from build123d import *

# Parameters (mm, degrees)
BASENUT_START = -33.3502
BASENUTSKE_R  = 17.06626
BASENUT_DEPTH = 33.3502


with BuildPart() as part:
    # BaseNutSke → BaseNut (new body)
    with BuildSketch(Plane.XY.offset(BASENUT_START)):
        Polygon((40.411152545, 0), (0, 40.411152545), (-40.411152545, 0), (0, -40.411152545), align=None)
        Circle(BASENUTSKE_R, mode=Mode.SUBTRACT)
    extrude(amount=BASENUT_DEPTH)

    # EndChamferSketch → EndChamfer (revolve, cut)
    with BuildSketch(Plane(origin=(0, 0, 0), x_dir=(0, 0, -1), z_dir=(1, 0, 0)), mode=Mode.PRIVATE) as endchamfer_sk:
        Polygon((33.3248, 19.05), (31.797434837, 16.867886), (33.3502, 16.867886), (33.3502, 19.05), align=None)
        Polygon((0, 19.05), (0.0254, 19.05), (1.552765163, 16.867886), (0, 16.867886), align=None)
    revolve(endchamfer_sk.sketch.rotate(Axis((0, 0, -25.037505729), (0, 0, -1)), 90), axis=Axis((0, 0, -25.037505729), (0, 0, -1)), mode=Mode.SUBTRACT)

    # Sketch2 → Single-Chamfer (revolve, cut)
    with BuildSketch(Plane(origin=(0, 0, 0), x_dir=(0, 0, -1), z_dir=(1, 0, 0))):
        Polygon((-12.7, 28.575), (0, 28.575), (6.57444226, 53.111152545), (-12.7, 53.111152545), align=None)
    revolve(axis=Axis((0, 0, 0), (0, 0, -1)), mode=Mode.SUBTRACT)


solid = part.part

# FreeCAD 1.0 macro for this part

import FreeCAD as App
import Part
import Sketcher

V = App.Vector
Q = App.Units.Quantity

doc = App.newDocument("Part")
body = doc.addObject("PartDesign::Body", "Body")

# Sketch on XY plane
sketch1 = body.newObject("Sketcher::SketchObject", "Sketch")
sketch1.AttachmentSupport = (doc.getObject("XY_Plane"), [""])
sketch1.MapMode = "FlatFace"
sketch1.AttachmentOffset = App.Placement(V(0, 0, -1.313 * 25.4), App.Rotation())
sketch1.addGeometry([
    Part.LineSegment(V(40.411153, 0, 0), V(0, 40.411153, 0)),  # 0
    Part.LineSegment(V(0, 40.411153, 0), V(-40.411153, 0, 0)),  # 1
    Part.LineSegment(V(-40.411153, 0, 0), V(0, -40.411153, 0)),  # 2
    Part.LineSegment(V(0, -40.411153, 0), V(40.411153, 0, 0)),  # 3
    Part.Circle(V(0, 0, 0), V(0, 0, 1), 17.06626),  # 4
], False)
sketch1.addConstraint([
    Sketcher.Constraint("Coincident", 0, 2, 1, 1),
    Sketcher.Constraint("Coincident", 1, 2, 2, 1),
    Sketcher.Constraint("Coincident", 2, 2, 3, 1),
    Sketcher.Constraint("Coincident", 3, 2, 0, 1),
    Sketcher.Constraint("Coincident", 4, 3, -1, 1),
    Sketcher.Constraint("Symmetric", 0, 2, 2, 2, -1, 1),
    Sketcher.Constraint("Symmetric", 1, 2, 3, 2, -1, 1),
    Sketcher.Constraint("PointOnObject", 0, 2, -2),
    Sketcher.Constraint("PointOnObject", 1, 2, -1),
    Sketcher.Constraint("Perpendicular", 0, 1),
    Sketcher.Constraint("Diameter", 4, Q("1.3438 in")),
    Sketcher.Constraint("Distance", 0, Q("2.25 in")),
])
pad1 = body.newObject("PartDesign::Pad", "Pad")
pad1.Profile = sketch1
pad1.Length = Q("1.313 in")

# Sketch on YZ plane
sketch2 = body.newObject("Sketcher::SketchObject", "Sketch001")
sketch2.AttachmentSupport = (doc.getObject("YZ_Plane"), [""])
sketch2.MapMode = "FlatFace"
sketch2.addGeometry([
    Part.LineSegment(V(19.05, -33.3248, 0), V(16.867886, -31.797435, 0)),  # 0
    Part.LineSegment(V(16.867886, -31.797435, 0), V(16.867886, -33.3502, 0)),  # 1
    Part.LineSegment(V(16.867886, -33.3502, 0), V(19.05, -33.3502, 0)),  # 2
    Part.LineSegment(V(19.05, -33.3502, 0), V(19.05, -33.3248, 0)),  # 3
    Part.LineSegment(V(19.05, -0.0254, 0), V(19.05, 0, 0)),  # 4
    Part.LineSegment(V(19.05, 0, 0), V(16.867886, 0, 0)),  # 5
    Part.LineSegment(V(16.867886, 0, 0), V(16.867886, -1.552765, 0)),  # 6
    Part.LineSegment(V(16.867886, -1.552765, 0), V(19.05, -0.0254, 0)),  # 7
], False)
sketch2.addConstraint([
    Sketcher.Constraint("Coincident", 0, 2, 1, 1),
    Sketcher.Constraint("Coincident", 1, 2, 2, 1),
    Sketcher.Constraint("Coincident", 2, 2, 3, 1),
    Sketcher.Constraint("Coincident", 3, 2, 0, 1),
    Sketcher.Constraint("Coincident", 4, 2, 5, 1),
    Sketcher.Constraint("Coincident", 5, 2, 6, 1),
    Sketcher.Constraint("Coincident", 6, 2, 7, 1),
    Sketcher.Constraint("Coincident", 7, 2, 4, 1),
    Sketcher.Constraint("Vertical", 1),
    Sketcher.Constraint("Horizontal", 2),
    Sketcher.Constraint("Vertical", 3),
    Sketcher.Constraint("Vertical", 4),
    Sketcher.Constraint("Horizontal", 5),
    Sketcher.Constraint("Vertical", 6),
    Sketcher.Constraint("PointOnObject", 4, 2, -1),
    Sketcher.Constraint("Vertical", 3, 2, 4, 2),
    Sketcher.Constraint("Vertical", 1, 2, 5, 2),
    Sketcher.Constraint("Equal", 3, 4),
    Sketcher.Constraint("Equal", 1, 6),
    Sketcher.Constraint("DistanceY", 3, 1, 3, 2, Q("0.001 in")),
    Sketcher.Constraint("DistanceX", -1, 1, 2, 2, Q("0.75 in")),
    Sketcher.Constraint("Angle", 0, Q("145.01 deg")),
    Sketcher.Constraint("DistanceY", 1, 2, -1, 1, Q("1.313 in")),
    Sketcher.Constraint("DistanceX", 2, 1, 2, 2, 2.182114),
])
groove = body.newObject("PartDesign::Groove", "Groove")
groove.Profile = sketch2
groove.ReferenceAxis = (sketch2, ["V_Axis"])
groove.Angle = 360

# Sketch on YZ plane
sketch3 = body.newObject("Sketcher::SketchObject", "Sketch002")
sketch3.AttachmentSupport = (doc.getObject("YZ_Plane"), [""])
sketch3.MapMode = "FlatFace"
sketch3.addGeometry([
    Part.LineSegment(V(28.575, 12.7, 0), V(28.575, 0, 0)),
    Part.LineSegment(V(28.575, 0, 0), V(53.111153, -6.574442, 0)),
    Part.LineSegment(V(53.111153, -6.574442, 0), V(53.111153, 12.7, 0)),
    Part.LineSegment(V(53.111153, 12.7, 0), V(28.575, 12.7, 0)),
], False)
sketch3.addConstraint([
    Sketcher.Constraint("Coincident", 0, 2, 1, 1),
    Sketcher.Constraint("Coincident", 1, 2, 2, 1),
    Sketcher.Constraint("Coincident", 2, 2, 3, 1),
    Sketcher.Constraint("Coincident", 3, 2, 0, 1),
    Sketcher.Constraint("Vertical", 0),
    Sketcher.Constraint("Vertical", 2),
    Sketcher.Constraint("Horizontal", 3),
    Sketcher.Constraint("PointOnObject", 0, 2, -1),
    Sketcher.Constraint("DistanceY", 0, 2, 0, 1, Q("0.5 in")),
    Sketcher.Constraint("Angle", 1, Q("-15 deg")),
    Sketcher.Constraint("DistanceX", -1, 1, 0, 2, Q("1.125 in")),
    Sketcher.Constraint("DistanceX", 3, 2, 3, 1, 24.536153),
])
groove2 = body.newObject("PartDesign::Groove", "Groove001")
groove2.Profile = sketch3
groove2.ReferenceAxis = (sketch3, ["V_Axis"])
groove2.Angle = 360

doc.recompute()
